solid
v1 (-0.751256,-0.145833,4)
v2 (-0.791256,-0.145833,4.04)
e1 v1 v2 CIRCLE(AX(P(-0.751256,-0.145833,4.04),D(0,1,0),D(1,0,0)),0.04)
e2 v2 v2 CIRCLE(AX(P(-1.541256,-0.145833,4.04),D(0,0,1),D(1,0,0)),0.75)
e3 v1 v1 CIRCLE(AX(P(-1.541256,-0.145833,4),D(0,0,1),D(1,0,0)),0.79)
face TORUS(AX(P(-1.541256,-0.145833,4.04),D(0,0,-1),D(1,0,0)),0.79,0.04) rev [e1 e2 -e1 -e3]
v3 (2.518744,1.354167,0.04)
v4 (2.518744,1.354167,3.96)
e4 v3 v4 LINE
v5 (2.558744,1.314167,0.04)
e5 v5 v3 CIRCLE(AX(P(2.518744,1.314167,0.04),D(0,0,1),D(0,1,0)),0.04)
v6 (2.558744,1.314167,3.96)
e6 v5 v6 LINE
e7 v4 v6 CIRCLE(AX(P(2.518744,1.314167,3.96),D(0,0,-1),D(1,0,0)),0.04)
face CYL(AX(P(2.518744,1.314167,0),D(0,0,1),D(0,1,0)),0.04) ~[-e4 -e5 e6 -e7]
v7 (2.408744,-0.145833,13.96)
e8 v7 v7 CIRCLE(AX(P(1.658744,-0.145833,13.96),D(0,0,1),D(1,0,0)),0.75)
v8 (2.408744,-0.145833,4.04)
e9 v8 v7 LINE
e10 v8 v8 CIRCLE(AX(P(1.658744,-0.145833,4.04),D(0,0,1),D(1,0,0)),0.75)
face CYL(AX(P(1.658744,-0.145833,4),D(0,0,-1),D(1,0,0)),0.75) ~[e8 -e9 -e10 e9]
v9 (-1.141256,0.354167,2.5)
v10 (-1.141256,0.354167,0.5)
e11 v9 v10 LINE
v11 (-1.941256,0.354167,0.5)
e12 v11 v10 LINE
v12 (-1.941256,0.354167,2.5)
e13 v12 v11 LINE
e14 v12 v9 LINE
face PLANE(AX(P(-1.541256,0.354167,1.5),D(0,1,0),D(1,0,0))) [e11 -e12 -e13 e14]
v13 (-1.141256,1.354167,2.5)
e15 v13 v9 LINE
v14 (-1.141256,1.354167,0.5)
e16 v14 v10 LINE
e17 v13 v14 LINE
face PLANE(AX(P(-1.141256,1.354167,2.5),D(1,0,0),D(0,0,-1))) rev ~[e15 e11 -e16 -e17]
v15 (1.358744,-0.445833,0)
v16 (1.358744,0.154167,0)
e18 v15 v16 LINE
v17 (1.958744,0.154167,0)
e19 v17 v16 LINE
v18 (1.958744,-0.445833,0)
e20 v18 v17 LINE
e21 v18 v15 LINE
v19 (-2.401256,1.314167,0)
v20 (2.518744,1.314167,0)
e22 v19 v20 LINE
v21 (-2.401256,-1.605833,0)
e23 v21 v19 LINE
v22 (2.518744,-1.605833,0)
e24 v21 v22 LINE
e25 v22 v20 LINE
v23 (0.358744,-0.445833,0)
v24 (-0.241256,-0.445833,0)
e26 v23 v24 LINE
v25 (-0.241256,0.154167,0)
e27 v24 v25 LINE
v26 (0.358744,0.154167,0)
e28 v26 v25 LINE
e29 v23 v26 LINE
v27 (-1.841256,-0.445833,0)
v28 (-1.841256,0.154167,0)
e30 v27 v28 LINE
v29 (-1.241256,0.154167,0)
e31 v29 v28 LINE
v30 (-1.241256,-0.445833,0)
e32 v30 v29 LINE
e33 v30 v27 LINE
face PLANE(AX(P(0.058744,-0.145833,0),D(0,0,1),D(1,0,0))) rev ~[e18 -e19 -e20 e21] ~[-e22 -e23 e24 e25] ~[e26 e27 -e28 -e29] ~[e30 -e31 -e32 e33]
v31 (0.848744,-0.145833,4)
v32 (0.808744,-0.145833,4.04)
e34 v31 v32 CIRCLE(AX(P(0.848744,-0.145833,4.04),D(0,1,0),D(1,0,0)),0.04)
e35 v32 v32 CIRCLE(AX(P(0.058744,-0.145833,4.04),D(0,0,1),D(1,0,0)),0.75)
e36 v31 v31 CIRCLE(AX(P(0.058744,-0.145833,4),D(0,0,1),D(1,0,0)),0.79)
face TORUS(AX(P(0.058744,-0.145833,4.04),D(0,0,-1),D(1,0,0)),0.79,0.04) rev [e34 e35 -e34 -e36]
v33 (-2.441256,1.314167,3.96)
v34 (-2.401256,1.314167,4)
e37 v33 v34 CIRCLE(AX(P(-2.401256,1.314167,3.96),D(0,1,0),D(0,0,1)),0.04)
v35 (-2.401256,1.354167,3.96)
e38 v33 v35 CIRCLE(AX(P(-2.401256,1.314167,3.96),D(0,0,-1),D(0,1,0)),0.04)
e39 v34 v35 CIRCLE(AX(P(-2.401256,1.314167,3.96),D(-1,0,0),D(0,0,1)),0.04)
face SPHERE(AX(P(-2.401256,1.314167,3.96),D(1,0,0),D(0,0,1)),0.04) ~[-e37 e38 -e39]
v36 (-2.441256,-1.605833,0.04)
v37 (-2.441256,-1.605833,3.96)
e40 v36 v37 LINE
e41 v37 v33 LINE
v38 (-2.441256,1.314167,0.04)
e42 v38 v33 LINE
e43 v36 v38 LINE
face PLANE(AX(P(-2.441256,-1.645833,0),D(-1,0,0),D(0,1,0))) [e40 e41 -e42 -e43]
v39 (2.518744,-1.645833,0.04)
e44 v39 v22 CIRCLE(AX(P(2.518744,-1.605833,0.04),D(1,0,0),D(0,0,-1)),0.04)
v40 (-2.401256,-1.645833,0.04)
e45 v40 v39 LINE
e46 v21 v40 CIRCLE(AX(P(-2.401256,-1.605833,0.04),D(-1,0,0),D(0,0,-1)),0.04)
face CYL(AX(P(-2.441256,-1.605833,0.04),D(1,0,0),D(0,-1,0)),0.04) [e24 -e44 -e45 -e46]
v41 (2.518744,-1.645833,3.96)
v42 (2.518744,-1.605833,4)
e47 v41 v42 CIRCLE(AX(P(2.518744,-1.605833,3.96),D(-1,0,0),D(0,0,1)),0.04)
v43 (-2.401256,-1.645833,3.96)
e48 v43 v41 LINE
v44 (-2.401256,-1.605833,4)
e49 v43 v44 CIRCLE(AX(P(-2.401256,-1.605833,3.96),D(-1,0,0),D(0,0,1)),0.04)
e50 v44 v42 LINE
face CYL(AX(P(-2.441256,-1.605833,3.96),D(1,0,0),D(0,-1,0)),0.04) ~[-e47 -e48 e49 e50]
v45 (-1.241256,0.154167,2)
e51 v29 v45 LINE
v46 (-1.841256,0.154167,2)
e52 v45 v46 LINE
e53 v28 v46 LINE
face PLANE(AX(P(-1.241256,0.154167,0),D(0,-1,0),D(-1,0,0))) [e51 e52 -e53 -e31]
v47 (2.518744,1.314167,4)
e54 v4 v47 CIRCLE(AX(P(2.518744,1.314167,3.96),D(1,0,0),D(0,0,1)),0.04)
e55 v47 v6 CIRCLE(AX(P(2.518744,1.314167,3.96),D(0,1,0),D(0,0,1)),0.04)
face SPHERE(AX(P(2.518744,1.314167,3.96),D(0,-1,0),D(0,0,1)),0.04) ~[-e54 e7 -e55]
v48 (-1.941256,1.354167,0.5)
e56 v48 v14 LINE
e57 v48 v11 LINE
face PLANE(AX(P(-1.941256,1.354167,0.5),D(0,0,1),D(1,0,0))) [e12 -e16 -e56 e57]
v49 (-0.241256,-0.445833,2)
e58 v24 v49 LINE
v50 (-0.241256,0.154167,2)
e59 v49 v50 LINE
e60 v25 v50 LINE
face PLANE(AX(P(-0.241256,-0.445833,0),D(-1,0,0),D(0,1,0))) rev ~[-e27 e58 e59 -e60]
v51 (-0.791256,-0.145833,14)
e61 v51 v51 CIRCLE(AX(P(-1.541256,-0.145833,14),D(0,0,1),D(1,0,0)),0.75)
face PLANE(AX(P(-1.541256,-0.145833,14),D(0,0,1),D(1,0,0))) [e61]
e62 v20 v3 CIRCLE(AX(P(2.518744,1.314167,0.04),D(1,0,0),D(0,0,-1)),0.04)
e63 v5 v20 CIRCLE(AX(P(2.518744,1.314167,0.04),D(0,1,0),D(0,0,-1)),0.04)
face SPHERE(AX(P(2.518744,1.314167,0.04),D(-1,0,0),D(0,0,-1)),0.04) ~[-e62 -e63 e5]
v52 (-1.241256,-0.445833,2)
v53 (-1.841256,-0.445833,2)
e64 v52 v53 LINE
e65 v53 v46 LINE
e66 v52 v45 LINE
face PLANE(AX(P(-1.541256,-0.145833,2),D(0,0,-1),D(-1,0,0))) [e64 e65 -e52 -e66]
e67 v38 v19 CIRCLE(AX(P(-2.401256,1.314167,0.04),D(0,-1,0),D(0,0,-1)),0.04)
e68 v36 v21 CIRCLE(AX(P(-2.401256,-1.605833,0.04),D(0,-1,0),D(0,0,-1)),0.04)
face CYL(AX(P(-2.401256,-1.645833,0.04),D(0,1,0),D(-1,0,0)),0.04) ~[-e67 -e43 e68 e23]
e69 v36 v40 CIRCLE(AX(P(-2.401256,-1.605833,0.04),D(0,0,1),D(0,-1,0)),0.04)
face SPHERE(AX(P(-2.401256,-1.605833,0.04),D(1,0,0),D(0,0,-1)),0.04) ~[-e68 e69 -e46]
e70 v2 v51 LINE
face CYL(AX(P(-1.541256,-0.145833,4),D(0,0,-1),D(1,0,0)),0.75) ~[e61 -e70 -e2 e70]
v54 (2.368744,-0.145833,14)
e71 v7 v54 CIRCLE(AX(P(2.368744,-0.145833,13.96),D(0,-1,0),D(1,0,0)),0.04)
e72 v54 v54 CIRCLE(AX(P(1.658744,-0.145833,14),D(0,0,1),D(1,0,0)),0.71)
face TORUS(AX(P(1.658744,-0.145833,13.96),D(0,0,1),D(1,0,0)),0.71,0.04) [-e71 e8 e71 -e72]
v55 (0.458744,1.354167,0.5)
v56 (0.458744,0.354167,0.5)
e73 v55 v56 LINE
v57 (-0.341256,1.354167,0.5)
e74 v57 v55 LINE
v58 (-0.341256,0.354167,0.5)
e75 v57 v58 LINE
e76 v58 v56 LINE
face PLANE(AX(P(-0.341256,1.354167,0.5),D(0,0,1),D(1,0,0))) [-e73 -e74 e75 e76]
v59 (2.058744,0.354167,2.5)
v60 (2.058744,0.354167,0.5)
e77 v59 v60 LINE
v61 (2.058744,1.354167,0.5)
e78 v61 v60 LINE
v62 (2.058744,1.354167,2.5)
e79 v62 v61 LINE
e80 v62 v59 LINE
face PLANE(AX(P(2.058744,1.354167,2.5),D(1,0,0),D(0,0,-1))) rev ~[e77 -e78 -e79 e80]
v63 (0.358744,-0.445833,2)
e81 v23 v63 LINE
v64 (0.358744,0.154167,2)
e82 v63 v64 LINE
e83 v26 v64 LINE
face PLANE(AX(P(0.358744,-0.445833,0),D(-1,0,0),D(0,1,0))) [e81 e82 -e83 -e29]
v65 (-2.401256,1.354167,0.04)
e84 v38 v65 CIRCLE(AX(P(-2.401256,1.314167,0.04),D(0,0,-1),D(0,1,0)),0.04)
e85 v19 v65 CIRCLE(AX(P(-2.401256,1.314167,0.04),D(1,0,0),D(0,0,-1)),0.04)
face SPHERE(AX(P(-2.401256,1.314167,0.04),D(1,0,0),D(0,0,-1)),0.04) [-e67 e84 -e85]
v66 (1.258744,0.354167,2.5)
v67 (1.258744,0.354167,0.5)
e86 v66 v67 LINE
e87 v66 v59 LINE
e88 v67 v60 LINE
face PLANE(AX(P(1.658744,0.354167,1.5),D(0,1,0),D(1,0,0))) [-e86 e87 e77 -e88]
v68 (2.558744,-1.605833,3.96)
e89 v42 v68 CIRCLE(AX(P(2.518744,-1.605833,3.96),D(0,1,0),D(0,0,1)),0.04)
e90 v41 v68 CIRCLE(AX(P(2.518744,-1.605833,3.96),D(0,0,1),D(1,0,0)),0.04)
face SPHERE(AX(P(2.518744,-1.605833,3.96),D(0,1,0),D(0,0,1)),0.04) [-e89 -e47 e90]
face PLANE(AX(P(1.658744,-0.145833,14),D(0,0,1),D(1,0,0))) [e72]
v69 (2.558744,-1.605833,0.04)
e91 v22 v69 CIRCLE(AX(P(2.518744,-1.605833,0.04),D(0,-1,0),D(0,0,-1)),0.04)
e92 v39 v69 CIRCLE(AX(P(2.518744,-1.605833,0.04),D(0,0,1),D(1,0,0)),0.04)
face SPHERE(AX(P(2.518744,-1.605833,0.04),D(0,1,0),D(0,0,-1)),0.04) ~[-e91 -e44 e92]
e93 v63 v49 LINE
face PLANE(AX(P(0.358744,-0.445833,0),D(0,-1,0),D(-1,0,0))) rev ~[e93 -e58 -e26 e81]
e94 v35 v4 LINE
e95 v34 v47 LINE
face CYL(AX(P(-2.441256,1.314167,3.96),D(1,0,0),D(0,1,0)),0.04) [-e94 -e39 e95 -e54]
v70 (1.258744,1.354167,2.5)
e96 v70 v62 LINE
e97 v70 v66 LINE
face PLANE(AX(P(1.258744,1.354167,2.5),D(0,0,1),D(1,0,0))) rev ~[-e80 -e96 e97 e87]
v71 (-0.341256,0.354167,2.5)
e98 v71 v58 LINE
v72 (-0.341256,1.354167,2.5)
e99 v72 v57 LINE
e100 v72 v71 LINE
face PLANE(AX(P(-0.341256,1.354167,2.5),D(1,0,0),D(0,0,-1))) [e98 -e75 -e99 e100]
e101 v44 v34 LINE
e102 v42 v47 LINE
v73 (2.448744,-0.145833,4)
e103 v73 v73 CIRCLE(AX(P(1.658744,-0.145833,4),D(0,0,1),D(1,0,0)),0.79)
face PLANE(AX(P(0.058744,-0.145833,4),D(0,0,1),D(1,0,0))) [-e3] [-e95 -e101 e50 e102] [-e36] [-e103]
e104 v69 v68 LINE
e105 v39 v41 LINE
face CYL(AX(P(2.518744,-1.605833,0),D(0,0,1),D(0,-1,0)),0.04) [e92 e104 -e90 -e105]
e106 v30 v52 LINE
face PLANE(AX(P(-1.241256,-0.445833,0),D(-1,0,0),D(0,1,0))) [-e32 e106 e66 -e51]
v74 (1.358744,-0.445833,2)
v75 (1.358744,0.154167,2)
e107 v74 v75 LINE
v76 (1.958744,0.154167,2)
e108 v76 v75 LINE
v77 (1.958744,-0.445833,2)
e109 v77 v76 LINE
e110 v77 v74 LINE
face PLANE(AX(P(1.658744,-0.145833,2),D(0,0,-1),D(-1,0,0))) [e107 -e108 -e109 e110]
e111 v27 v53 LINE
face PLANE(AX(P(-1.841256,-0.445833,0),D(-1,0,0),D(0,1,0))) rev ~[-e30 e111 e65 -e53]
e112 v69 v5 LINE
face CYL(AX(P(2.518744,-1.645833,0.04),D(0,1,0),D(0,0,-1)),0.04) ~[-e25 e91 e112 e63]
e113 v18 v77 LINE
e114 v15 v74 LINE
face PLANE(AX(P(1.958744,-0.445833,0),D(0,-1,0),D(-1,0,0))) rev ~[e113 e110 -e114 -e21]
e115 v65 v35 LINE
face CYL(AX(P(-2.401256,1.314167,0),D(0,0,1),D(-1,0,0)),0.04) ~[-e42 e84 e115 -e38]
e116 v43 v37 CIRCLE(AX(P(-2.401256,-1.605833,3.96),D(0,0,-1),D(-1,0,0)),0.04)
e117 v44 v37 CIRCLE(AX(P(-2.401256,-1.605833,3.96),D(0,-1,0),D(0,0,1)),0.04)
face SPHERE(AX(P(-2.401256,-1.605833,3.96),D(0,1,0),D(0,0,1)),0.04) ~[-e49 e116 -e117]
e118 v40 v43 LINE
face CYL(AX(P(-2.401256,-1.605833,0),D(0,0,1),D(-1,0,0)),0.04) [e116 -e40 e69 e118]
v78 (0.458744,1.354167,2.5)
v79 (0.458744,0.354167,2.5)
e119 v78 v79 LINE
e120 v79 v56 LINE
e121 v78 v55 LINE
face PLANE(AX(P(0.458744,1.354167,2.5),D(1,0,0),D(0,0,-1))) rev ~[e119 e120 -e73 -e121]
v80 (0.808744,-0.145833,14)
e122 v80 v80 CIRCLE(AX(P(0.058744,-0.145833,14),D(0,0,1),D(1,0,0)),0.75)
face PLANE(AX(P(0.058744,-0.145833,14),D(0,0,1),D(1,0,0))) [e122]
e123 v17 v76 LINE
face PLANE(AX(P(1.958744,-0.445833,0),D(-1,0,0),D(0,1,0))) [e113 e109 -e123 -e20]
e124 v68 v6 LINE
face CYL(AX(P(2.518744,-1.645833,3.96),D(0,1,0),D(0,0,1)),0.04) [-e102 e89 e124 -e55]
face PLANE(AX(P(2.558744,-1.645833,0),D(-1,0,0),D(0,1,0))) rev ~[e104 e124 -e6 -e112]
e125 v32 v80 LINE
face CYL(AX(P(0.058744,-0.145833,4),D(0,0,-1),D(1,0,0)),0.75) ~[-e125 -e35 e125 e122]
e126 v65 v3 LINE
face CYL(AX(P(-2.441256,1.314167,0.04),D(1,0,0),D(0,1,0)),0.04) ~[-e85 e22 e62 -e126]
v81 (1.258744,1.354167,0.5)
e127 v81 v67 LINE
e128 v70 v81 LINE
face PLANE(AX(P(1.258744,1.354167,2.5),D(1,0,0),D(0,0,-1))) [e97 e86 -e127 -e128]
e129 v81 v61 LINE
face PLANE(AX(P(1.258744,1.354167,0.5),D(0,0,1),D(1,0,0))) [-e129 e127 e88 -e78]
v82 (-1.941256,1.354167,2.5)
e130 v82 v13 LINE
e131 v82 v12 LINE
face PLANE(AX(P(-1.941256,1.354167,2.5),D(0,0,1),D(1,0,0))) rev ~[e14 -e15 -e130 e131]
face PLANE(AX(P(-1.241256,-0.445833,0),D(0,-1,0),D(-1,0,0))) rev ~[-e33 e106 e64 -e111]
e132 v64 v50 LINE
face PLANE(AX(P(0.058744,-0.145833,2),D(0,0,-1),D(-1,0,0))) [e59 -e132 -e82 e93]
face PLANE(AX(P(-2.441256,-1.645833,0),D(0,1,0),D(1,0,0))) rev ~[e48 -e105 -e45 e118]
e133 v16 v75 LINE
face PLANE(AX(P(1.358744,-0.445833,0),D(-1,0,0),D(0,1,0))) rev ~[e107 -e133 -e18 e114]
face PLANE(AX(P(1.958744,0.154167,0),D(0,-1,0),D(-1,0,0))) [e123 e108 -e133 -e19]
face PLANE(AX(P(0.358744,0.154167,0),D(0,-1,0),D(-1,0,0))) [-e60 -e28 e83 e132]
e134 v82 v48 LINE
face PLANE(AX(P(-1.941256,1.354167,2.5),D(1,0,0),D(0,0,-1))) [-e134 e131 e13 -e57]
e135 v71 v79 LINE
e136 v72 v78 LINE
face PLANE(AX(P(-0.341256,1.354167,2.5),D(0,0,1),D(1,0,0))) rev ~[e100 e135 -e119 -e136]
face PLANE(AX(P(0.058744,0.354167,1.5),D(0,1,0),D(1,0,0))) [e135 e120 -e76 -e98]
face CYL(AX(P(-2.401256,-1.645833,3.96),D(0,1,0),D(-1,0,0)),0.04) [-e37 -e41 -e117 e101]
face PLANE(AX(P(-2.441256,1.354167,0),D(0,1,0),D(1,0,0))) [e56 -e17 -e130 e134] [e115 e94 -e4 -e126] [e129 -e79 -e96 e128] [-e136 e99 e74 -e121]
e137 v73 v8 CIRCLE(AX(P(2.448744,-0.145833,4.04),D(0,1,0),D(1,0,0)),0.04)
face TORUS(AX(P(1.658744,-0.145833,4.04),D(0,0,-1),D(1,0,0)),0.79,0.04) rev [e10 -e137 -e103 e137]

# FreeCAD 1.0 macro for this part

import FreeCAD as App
import Part
import Sketcher

V = App.Vector
Q = App.Units.Quantity


def edges_at(feature, points):
    """Names of the edges that pass closest to the given points."""
    edges = feature.Shape.Edges
    near = lambda p: min(range(len(edges)), key=lambda i: edges[i].distToShape(Part.Vertex(*p))[0])
    return sorted({f"Edge{near(p) + 1}" for p in points})


def add_polygon(sketch, points):
    """Adds a closed chain of lines whose ends are joined by coincident constraints."""
    first, n = sketch.GeometryCount, len(points)
    for a, b in zip(points, points[1:] + points[:1]):
        sketch.addGeometry(Part.LineSegment(App.Vector(*a, 0), App.Vector(*b, 0)), False)
    for i in range(n):
        sketch.addConstraint(Sketcher.Constraint("Coincident", first + i, 2, first + (i + 1) % n, 1))

doc = App.newDocument("Part")
body = doc.addObject("PartDesign::Body", "Body")

# Sketch on XY plane
sketch1 = body.newObject("Sketcher::SketchObject", "Sketch")
sketch1.AttachmentSupport = (doc.getObject("XY_Plane"), [""])
sketch1.MapMode = "FlatFace"
add_polygon(sketch1, [(-2.4, 1.4), (-2.4, -1.6), (2.6, -1.6), (2.6, 1.4)])  # lines 0-3
sketch1.addConstraint([
    Sketcher.Constraint("Vertical", 0),
    Sketcher.Constraint("Horizontal", 1),
    Sketcher.Constraint("Vertical", 2),
    Sketcher.Constraint("Horizontal", 3),
    Sketcher.Constraint("DistanceX", 1, 1, 1, 2, Q("5 mm")),
    Sketcher.Constraint("DistanceY", 0, 2, 0, 1, Q("3 mm")),
    Sketcher.Constraint("DistanceX", 0, 2, -1, 1, Q("2.441256 mm")),
    Sketcher.Constraint("DistanceY", 0, 2, -1, 1, Q("1.645833 mm")),
])
pad1 = body.newObject("PartDesign::Pad", "Pad")
pad1.Profile = sketch1
pad1.Length = 4

# Sketch on XY plane
sketch2 = body.newObject("Sketcher::SketchObject", "Sketch001")
sketch2.AttachmentSupport = (doc.getObject("XY_Plane"), [""])
sketch2.MapMode = "FlatFace"
sketch2.AttachmentOffset = App.Placement(V(0, 0, 4), App.Rotation())
sketch2.addGeometry([
    Part.Circle(V(-1.5, -0.1, 0), V(0, 0, 1), 0.8),
    Part.Circle(V(0.1, -0.1, 0), V(0, 0, 1), 0.8),
    Part.Circle(V(1.7, -0.1, 0), V(0, 0, 1), 0.8),
], False)
sketch2.addConstraint([
    Sketcher.Constraint("Equal", 0, 1),
    Sketcher.Constraint("Equal", 1, 2),
    Sketcher.Constraint("Horizontal", 0, 3, 1, 3),
    Sketcher.Constraint("Horizontal", 1, 3, 2, 3),
    Sketcher.Constraint("Diameter", 0, Q("1.5 mm")),
    Sketcher.Constraint("DistanceX", 0, 3, 1, 3, Q("1.6 mm")),
    Sketcher.Constraint("DistanceX", 1, 3, 2, 3, Q("1.6 mm")),
    Sketcher.Constraint("DistanceX", 0, 3, -1, 1, Q("1.541256 mm")),
    Sketcher.Constraint("DistanceY", 0, 3, -1, 1, Q("0.145833 mm")),
])
pad2 = body.newObject("PartDesign::Pad", "Pad001")
pad2.Profile = sketch2
pad2.Length = 10

# Sketch on XZ plane
sketch3 = body.newObject("Sketcher::SketchObject", "Sketch002")
sketch3.AttachmentSupport = (doc.getObject("XZ_Plane"), [""])
sketch3.MapMode = "FlatFace"
sketch3.AttachmentOffset = App.Placement(V(0, 0, -1.354167), App.Rotation())
add_polygon(sketch3, [(1.3, 0.5), (1.3, 2.5), (2.1, 2.5), (2.1, 0.5)])  # lines 0-3
add_polygon(sketch3, [(-0.3, 0.5), (-0.3, 2.5), (0.5, 2.5), (0.5, 0.5)])  # lines 4-7
add_polygon(sketch3, [(-1.9, 0.5), (-1.9, 2.5), (-1.1, 2.5), (-1.1, 0.5)])  # lines 8-11
sketch3.addConstraint([
    Sketcher.Constraint("Vertical", 0),
    Sketcher.Constraint("Horizontal", 1),
    Sketcher.Constraint("Vertical", 2),
    Sketcher.Constraint("Horizontal", 3),
    Sketcher.Constraint("Vertical", 4),
    Sketcher.Constraint("Horizontal", 5),
    Sketcher.Constraint("Vertical", 6),
    Sketcher.Constraint("Horizontal", 7),
    Sketcher.Constraint("Vertical", 8),
    Sketcher.Constraint("Horizontal", 9),
    Sketcher.Constraint("Vertical", 10),
    Sketcher.Constraint("Horizontal", 11),
    Sketcher.Constraint("Horizontal", 1, 2, 4, 2),
    Sketcher.Constraint("Horizontal", 3, 2, 6, 2),
    Sketcher.Constraint("Horizontal", 5, 2, 8, 2),
    Sketcher.Constraint("Horizontal", 7, 2, 10, 2),
    Sketcher.Constraint("Equal", 3, 5),
    Sketcher.Constraint("Equal", 7, 9),
    Sketcher.Constraint("DistanceY", 0, 1, 0, 2, Q("2 mm")),
    Sketcher.Constraint("DistanceX", 1, 1, 1, 2, Q("0.8 mm")),
    Sketcher.Constraint("DistanceY", -1, 1, 0, 2, Q("2.5 mm")),
    Sketcher.Constraint("DistanceX", 4, 2, 0, 2, Q("1.6 mm")),
    Sketcher.Constraint("DistanceX", 8, 2, 4, 2, Q("1.6 mm")),
    Sketcher.Constraint("DistanceX", -1, 1, 0, 2, Q("1.258744 mm")),
])
pocket1 = body.newObject("PartDesign::Pocket", "Pocket")
pocket1.Profile = sketch3
pocket1.Length = 1
pocket1.Reversed = True

# Sketch on XY plane
sketch4 = body.newObject("Sketcher::SketchObject", "Sketch003")
sketch4.AttachmentSupport = (doc.getObject("XY_Plane"), [""])
sketch4.MapMode = "FlatFace"
add_polygon(sketch4, [(2, 0.2), (2, -0.4), (1.4, -0.4), (1.4, 0.2)])  # lines 0-3
add_polygon(sketch4, [(0.4, 0.2), (0.4, -0.4), (-0.2, -0.4), (-0.2, 0.2)])  # lines 4-7
add_polygon(sketch4, [(-1.2, 0.2), (-1.2, -0.4), (-1.8, -0.4), (-1.8, 0.2)])  # lines 8-11
sketch4.addConstraint([
    Sketcher.Constraint("Vertical", 0),
    Sketcher.Constraint("Horizontal", 1),
    Sketcher.Constraint("Vertical", 2),
    Sketcher.Constraint("Horizontal", 3),
    Sketcher.Constraint("Vertical", 4),
    Sketcher.Constraint("Horizontal", 5),
    Sketcher.Constraint("Vertical", 6),
    Sketcher.Constraint("Horizontal", 7),
    Sketcher.Constraint("Vertical", 8),
    Sketcher.Constraint("Horizontal", 9),
    Sketcher.Constraint("Vertical", 10),
    Sketcher.Constraint("Horizontal", 11),
    Sketcher.Constraint("Horizontal", 1, 2, 4, 2),
    Sketcher.Constraint("Horizontal", 3, 2, 6, 2),
    Sketcher.Constraint("Horizontal", 5, 2, 8, 2),
    Sketcher.Constraint("Horizontal", 7, 2, 10, 2),
    Sketcher.Constraint("Equal", 3, 5),
    Sketcher.Constraint("Equal", 7, 9),
    Sketcher.Constraint("Equal", 11, 0),
    Sketcher.Constraint("DistanceX", 1, 2, 1, 1, Q("0.6 mm")),
    Sketcher.Constraint("DistanceX", 4, 2, 1, 2, Q("1 mm")),
    Sketcher.Constraint("DistanceX", 8, 2, 5, 2, Q("1 mm")),
    Sketcher.Constraint("DistanceX", -1, 1, 0, 2, Q("1.958744 mm")),
    Sketcher.Constraint("DistanceY", 0, 2, -1, 1, Q("0.445833 mm")),
])
pocket2 = body.newObject("PartDesign::Pocket", "Pocket001")
pocket2.Profile = sketch4
pocket2.Length = 2
pocket2.Reversed = True
doc.recompute()

fillet = body.newObject("PartDesign::Fillet", "Fillet")
fillet.Base = (pocket2, edges_at(pocket2, [
    (2.559, -0.146, 4),
    (0.059, 1.354, 4),
    (-2.291, -0.146, 4),
    (-0.691, -0.146, 4),
    (0.909, -0.146, 4),
    (0.909, -0.146, 14),
    (-2.441, -0.146, 4),
    (0.059, 1.354, 0),
    (2.559, -0.146, 0),
    (0.059, -1.646, 0),
    (-2.441, -0.146, 0),
    (0.059, -1.646, 4),
    (-2.441, 1.354, 2),
    (2.559, 1.354, 2),
    (2.559, -1.646, 2),
    (-2.441, -1.646, 2),
]))
fillet.Radius = 0.04

doc.recompute()
